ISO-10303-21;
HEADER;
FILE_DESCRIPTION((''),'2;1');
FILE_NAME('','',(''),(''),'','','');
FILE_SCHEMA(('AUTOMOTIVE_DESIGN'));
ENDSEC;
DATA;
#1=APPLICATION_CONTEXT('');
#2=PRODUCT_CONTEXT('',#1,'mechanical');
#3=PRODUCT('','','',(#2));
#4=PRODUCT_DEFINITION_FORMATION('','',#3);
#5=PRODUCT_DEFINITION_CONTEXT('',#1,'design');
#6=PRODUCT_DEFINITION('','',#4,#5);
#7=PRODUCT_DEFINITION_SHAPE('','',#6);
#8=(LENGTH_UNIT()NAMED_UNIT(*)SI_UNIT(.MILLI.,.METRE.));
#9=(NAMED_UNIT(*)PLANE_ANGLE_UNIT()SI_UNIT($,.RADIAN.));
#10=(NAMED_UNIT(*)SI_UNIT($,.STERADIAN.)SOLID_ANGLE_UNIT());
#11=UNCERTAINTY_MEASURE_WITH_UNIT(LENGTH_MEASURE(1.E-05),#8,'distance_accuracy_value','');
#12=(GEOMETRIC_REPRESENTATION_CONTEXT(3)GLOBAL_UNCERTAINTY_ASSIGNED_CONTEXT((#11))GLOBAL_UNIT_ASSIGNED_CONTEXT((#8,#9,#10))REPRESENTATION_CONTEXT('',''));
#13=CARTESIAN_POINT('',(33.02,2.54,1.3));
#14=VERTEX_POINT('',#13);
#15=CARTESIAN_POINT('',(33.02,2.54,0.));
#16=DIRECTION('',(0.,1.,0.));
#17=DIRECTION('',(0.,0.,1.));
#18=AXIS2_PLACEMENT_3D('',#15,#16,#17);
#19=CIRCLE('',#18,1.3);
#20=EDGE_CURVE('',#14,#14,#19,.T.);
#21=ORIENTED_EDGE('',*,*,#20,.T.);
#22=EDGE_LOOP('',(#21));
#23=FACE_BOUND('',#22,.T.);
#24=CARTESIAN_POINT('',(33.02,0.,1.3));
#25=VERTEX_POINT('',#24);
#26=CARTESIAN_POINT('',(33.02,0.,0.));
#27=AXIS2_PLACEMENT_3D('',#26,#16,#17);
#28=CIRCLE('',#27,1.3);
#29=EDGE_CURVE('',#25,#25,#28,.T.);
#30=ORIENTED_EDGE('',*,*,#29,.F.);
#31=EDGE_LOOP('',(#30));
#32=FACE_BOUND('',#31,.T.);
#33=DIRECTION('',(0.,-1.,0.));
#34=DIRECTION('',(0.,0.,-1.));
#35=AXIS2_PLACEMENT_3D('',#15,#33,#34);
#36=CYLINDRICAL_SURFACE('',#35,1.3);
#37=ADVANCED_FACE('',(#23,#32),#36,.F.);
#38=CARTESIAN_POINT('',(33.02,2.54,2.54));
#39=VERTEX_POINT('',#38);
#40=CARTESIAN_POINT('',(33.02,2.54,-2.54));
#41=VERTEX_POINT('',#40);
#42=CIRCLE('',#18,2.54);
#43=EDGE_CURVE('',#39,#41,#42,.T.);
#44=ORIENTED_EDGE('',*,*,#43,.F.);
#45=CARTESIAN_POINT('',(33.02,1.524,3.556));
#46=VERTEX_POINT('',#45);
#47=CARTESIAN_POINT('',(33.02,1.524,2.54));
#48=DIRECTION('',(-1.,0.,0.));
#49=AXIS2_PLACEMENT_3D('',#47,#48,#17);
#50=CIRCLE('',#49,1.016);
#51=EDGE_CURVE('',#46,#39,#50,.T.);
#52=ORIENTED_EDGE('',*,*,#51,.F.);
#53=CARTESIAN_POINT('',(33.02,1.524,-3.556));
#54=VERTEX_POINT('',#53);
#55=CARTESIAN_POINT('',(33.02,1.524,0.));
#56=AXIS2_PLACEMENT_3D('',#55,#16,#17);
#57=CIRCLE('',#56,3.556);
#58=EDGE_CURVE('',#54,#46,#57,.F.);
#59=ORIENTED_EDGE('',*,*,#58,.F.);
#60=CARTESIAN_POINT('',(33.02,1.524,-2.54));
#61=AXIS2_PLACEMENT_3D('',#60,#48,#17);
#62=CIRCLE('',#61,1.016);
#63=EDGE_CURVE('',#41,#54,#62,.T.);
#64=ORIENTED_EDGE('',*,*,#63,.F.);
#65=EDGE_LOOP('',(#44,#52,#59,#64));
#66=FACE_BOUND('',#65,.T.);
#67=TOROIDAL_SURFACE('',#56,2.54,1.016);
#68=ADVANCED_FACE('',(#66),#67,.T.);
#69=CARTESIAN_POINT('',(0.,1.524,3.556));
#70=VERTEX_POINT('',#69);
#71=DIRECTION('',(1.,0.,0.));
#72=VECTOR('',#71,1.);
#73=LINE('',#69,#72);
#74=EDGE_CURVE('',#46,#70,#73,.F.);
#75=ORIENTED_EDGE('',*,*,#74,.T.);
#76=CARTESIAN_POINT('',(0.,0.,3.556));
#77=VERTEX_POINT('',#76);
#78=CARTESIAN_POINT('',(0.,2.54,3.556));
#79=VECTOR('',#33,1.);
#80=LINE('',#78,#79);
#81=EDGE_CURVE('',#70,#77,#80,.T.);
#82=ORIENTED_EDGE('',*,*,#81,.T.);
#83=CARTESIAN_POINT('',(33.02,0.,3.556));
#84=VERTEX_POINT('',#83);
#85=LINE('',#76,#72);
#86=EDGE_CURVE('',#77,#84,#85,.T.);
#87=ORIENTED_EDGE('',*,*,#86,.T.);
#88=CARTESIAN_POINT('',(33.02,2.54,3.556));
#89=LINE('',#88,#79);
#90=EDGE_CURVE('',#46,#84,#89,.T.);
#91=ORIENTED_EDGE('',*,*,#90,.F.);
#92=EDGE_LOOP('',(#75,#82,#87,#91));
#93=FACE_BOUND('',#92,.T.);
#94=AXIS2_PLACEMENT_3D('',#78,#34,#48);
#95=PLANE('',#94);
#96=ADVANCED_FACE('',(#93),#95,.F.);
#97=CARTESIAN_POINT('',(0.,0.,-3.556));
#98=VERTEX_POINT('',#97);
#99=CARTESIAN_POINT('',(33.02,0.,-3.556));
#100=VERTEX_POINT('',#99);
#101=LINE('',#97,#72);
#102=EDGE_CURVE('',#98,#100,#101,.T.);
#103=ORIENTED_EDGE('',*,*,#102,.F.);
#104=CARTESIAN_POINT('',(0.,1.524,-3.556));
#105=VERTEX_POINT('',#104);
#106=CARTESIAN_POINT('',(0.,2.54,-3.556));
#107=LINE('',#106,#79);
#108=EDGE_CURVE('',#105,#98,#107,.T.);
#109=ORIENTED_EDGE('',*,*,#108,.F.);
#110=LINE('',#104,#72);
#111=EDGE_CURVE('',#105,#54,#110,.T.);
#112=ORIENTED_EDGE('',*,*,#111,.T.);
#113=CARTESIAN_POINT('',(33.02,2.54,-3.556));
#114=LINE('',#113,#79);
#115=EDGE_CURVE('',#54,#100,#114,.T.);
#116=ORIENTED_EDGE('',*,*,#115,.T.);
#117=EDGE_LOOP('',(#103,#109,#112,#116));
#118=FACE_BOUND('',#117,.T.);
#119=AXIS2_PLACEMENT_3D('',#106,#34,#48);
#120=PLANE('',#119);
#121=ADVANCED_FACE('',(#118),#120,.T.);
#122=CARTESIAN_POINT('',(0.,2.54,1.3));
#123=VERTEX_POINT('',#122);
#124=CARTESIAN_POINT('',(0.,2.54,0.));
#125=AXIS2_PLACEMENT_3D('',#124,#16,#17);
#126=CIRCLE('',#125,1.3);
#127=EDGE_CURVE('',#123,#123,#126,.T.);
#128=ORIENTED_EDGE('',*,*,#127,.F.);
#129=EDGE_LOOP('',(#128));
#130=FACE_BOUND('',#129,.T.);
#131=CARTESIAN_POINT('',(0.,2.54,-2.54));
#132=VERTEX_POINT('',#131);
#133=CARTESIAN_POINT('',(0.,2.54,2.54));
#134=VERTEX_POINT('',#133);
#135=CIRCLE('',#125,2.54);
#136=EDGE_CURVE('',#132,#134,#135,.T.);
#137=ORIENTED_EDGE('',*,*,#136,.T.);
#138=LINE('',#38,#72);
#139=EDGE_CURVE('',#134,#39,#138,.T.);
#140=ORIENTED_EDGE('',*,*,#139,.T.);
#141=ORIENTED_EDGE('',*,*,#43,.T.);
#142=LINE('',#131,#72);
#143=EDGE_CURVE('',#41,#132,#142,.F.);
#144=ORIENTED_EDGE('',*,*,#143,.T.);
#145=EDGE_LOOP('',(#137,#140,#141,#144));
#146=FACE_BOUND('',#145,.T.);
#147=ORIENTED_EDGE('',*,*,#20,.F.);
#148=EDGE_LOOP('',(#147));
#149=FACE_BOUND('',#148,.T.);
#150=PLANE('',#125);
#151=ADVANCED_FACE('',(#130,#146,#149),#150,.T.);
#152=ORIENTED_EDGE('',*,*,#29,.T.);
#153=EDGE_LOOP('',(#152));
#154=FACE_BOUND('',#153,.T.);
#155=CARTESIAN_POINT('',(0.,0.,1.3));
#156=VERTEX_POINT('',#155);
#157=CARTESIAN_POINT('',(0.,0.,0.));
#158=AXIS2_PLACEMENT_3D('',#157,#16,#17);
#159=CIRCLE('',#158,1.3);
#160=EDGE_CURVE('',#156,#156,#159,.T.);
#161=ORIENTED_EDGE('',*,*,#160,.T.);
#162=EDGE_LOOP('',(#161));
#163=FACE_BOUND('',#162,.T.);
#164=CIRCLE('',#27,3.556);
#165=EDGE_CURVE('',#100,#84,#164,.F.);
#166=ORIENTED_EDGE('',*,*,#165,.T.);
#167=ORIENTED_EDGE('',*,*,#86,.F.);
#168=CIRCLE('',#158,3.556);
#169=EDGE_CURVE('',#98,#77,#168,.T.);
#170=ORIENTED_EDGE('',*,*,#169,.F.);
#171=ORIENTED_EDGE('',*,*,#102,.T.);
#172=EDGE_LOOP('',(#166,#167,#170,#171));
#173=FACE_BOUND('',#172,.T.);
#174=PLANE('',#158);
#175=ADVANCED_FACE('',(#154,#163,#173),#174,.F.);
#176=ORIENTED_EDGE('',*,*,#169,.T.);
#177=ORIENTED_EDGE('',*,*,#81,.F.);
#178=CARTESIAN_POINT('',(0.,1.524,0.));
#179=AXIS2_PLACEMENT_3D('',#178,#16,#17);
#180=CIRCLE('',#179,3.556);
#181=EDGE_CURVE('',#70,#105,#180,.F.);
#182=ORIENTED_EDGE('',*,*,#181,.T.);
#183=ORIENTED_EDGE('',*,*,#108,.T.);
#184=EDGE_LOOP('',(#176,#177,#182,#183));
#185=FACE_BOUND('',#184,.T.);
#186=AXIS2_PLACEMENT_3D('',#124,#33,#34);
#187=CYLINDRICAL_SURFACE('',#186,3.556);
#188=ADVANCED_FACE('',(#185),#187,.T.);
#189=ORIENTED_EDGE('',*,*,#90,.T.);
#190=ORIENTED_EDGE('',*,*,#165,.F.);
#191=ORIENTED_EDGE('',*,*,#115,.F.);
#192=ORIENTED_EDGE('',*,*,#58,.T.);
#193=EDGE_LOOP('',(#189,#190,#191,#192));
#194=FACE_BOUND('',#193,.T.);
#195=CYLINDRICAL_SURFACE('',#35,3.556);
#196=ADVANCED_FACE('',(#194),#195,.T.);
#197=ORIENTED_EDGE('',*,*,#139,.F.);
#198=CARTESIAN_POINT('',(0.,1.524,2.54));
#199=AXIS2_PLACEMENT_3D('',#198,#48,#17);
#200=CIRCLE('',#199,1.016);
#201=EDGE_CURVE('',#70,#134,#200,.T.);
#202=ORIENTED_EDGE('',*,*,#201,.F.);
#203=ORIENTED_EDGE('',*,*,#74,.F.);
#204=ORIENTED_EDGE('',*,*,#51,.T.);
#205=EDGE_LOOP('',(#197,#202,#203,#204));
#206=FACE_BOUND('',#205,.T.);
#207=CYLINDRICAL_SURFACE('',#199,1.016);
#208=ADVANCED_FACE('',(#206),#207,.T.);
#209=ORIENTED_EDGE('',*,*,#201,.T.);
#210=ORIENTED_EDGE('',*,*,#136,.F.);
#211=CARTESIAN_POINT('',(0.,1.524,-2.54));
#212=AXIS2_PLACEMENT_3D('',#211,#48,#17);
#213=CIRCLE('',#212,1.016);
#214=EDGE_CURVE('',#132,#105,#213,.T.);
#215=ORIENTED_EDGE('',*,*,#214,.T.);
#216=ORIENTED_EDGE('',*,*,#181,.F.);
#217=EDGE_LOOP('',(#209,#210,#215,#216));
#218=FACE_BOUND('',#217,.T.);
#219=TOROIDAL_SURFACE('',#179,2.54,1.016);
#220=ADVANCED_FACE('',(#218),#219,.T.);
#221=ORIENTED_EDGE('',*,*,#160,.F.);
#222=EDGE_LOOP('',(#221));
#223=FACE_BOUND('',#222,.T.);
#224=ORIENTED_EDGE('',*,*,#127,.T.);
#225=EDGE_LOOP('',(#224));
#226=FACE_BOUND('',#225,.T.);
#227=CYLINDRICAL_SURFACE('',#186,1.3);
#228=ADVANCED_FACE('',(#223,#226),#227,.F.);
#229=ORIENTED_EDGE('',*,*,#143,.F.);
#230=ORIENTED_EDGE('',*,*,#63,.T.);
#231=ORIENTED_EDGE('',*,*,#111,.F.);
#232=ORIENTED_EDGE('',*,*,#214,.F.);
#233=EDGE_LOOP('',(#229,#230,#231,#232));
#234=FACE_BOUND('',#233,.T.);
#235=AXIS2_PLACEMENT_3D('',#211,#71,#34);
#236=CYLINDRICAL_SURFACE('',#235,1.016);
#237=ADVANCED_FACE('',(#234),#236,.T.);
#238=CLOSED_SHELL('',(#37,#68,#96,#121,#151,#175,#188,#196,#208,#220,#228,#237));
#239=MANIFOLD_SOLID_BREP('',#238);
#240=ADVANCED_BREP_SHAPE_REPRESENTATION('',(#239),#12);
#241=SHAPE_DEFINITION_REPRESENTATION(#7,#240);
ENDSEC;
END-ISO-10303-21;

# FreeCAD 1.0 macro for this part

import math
import FreeCAD as App
import Part
import Sketcher
Q = App.Units.Quantity


def edges_at(feature, points):
    """Names of the edges that pass closest to the given points."""
    edges = feature.Shape.Edges
    near = lambda p: min(range(len(edges)), key=lambda i: edges[i].distToShape(Part.Vertex(*p))[0])
    return sorted({f"Edge{near(p) + 1}" for p in points})

doc = App.newDocument("Part")
body = doc.addObject("PartDesign::Body", "Body")

# Sketch on XZ plane
sketch1 = body.newObject("Sketcher::SketchObject", "Sketch")
sketch1.AttachmentSupport = (doc.getObject("XZ_Plane"), [""])
sketch1.MapMode = "FlatFace"
sketch1.addGeometry(Part.LineSegment(App.Vector(33, -3.6, 0), App.Vector(0, -3.6, 0)), False)
sketch1.addGeometry(Part.ArcOfCircle(Part.Circle(App.Vector(0, 0, 0), App.Vector(0, 0, 1), 3.6), math.radians(90), math.radians(270)), False)
sketch1.addGeometry(Part.LineSegment(App.Vector(0, 3.6, 0), App.Vector(33, 3.6, 0)), False)
sketch1.addGeometry(Part.ArcOfCircle(Part.Circle(App.Vector(33, 0, 0), App.Vector(0, 0, 1), 3.6), math.radians(-90), math.radians(90)), False)
sketch1.addGeometry(Part.Circle(App.Vector(33, 0, 0), App.Vector(0, 0, 1), 1.3), False)
sketch1.addGeometry(Part.Circle(App.Vector(0, 0, 0), App.Vector(0, 0, 1), 1.3), False)
sketch1.addConstraint(Sketcher.Constraint("Tangent", 0, 2, 1, 2))
sketch1.addConstraint(Sketcher.Constraint("Tangent", 1, 1, 2, 1))
sketch1.addConstraint(Sketcher.Constraint("Tangent", 2, 2, 3, 2))
sketch1.addConstraint(Sketcher.Constraint("Tangent", 3, 1, 0, 1))
sketch1.addConstraint(Sketcher.Constraint("Horizontal", 0))
sketch1.addConstraint(Sketcher.Constraint("Horizontal", 2))
sketch1.addConstraint(Sketcher.Constraint("Coincident", 1, 3, -1, 1))
sketch1.addConstraint(Sketcher.Constraint("Coincident", 5, 3, -1, 1))
sketch1.addConstraint(Sketcher.Constraint("Coincident", 4, 3, 3, 3))
sketch1.addConstraint(Sketcher.Constraint("Equal", 4, 5))
sketch1.addConstraint(Sketcher.Constraint("Radius", 1, Q("0.14 in")))
sketch1.addConstraint(Sketcher.Constraint("DistanceX", 0, 2, 0, 1, Q("1.3 in")))
sketch1.addConstraint(Sketcher.Constraint("Diameter", 4, 2.6))
pad1 = body.newObject("PartDesign::Pad", "Pad")
pad1.Profile = sketch1
pad1.Length = Q("0.1 in")
pad1.Reversed = True
doc.recompute()

fillet = body.newObject("PartDesign::Fillet", "Fillet")
fillet.Base = (pad1, edges_at(pad1, [
    (36.576, 2.54, 0),
    (16.51, 2.54, -3.556),
    (-3.556, 2.54, 0),
    (16.51, 2.54, 3.556),
]))
fillet.Radius = Q("0.04 in")

doc.recompute()
